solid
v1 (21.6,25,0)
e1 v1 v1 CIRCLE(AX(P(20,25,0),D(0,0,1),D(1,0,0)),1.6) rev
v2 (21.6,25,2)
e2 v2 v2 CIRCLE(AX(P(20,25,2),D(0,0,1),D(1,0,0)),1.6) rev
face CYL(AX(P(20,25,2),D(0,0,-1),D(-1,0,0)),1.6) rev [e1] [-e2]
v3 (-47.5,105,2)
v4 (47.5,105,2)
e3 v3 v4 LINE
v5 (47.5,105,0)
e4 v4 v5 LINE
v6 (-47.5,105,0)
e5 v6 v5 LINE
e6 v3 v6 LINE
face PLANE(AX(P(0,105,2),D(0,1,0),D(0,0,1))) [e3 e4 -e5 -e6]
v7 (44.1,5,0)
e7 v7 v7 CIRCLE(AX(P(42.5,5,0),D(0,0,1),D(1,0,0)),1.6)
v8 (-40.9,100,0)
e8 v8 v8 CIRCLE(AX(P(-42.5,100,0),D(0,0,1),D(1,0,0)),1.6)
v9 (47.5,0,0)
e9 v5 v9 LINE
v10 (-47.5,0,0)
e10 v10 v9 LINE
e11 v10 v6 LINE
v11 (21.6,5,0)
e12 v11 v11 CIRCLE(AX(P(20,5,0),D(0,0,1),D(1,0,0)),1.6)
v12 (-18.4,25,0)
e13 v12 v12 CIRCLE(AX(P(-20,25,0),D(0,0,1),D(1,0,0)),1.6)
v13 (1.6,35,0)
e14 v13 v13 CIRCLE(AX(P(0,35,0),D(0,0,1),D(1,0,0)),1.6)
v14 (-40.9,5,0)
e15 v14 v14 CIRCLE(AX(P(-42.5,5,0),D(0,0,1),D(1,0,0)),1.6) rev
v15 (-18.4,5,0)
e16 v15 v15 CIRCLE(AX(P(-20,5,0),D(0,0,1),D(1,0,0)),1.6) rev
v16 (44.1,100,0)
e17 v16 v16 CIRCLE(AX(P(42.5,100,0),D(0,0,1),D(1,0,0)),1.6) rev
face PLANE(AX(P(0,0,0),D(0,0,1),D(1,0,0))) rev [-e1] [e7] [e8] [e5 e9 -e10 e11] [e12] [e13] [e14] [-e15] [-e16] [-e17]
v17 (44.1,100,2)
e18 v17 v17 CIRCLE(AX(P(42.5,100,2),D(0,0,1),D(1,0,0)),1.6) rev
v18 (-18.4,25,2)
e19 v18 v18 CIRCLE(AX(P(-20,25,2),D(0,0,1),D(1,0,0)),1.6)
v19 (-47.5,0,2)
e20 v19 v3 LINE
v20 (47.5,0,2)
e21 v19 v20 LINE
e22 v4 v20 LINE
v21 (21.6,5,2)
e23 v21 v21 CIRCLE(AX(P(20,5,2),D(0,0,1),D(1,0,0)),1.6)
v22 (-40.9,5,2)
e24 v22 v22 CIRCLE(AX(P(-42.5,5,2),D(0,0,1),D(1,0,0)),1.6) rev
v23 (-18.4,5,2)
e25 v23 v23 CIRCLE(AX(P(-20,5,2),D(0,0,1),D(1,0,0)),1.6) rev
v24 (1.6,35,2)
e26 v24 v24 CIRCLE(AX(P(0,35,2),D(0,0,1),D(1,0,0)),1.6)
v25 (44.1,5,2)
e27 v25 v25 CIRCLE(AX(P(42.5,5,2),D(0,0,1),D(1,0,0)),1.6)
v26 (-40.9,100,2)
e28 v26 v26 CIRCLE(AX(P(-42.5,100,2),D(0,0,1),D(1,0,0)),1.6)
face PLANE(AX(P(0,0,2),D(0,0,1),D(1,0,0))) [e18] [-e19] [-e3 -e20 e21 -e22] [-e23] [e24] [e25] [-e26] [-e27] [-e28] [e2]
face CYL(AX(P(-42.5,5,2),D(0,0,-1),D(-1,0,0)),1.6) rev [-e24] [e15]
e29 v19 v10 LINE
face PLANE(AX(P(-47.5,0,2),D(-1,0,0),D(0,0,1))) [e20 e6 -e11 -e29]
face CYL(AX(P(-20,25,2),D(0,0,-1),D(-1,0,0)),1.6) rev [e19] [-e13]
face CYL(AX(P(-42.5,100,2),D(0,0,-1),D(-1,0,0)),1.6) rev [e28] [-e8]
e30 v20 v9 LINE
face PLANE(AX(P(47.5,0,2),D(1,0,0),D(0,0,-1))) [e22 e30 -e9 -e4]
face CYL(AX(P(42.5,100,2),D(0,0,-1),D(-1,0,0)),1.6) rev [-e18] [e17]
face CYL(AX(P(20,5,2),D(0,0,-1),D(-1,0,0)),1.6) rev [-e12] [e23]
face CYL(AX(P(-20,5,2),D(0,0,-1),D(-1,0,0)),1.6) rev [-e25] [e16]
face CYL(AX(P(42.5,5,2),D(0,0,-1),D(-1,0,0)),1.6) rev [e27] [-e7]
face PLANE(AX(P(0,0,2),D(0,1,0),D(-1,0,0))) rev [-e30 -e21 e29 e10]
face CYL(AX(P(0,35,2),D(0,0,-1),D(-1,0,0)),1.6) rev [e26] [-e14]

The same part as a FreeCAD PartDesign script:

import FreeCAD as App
import Part
import Sketcher

doc = App.newDocument("Part")
params = doc.addObject("Spreadsheet::Sheet", "Params")
for row, (alias, value) in enumerate([
    ("sketch1_diameter", "3.2 mm"),
    ("sketch1_width", "95 mm"),
    ("sketch1_height", "105 mm"),
    ("pad1_length", "2 mm"),
], start=1):
    params.set(f"A{row}", alias)
    params.set(f"B{row}", "=" + value)
    params.setAlias(f"B{row}", alias)

body = doc.addObject("PartDesign::Body", "Body")

# Sketch on XY plane
sketch1 = body.newObject("Sketcher::SketchObject", "Sketch")
sketch1.AttachmentSupport = (doc.getObject("XY_Plane"), [""])
sketch1.MapMode = "FlatFace"
sketch1.addGeometry([
    Part.LineSegment(App.Vector(-47.5, 105, 0), App.Vector(-47.5, 0, 0)),  # 0
    Part.LineSegment(App.Vector(-47.5, 0, 0), App.Vector(47.5, 0, 0)),  # 1
    Part.LineSegment(App.Vector(47.5, 0, 0), App.Vector(47.5, 105, 0)),  # 2
    Part.LineSegment(App.Vector(47.5, 105, 0), App.Vector(-47.5, 105, 0)),  # 3
    Part.Circle(App.Vector(-42.5, 5, 0), App.Vector(0, 0, 1), 1.6),  # 4
    Part.Circle(App.Vector(42.5, 5, 0), App.Vector(0, 0, 1), 1.6),  # 5
    Part.Circle(App.Vector(0, 35, 0), App.Vector(0, 0, 1), 1.6),  # 6
    Part.Circle(App.Vector(-42.5, 100, 0), App.Vector(0, 0, 1), 1.6),  # 7
    Part.Circle(App.Vector(42.5, 100, 0), App.Vector(0, 0, 1), 1.6),  # 8
    Part.Circle(App.Vector(20, 25, 0), App.Vector(0, 0, 1), 1.6),  # 9
    Part.Circle(App.Vector(-20, 25, 0), App.Vector(0, 0, 1), 1.6),  # 10
    Part.Circle(App.Vector(20, 5, 0), App.Vector(0, 0, 1), 1.6),  # 11
    Part.Circle(App.Vector(-20, 5, 0), App.Vector(0, 0, 1), 1.6),  # 12
], False)
sketch1.addConstraint([
    Sketcher.Constraint("Coincident", 0, 2, 1, 1),
    Sketcher.Constraint("Coincident", 1, 2, 2, 1),
    Sketcher.Constraint("Coincident", 2, 2, 3, 1),
    Sketcher.Constraint("Coincident", 3, 2, 0, 1),
    Sketcher.Constraint("Vertical", 0),
    Sketcher.Constraint("Horizontal", 1),
    Sketcher.Constraint("Vertical", 2),
    Sketcher.Constraint("Horizontal", 3),
    Sketcher.Constraint("Equal", 4, 5),
    Sketcher.Constraint("Equal", 5, 6),
    Sketcher.Constraint("Equal", 6, 7),
    Sketcher.Constraint("Equal", 7, 8),
    Sketcher.Constraint("Equal", 8, 9),
    Sketcher.Constraint("Equal", 9, 10),
    Sketcher.Constraint("Equal", 10, 11),
    Sketcher.Constraint("Equal", 11, 12),
    Sketcher.Constraint("Symmetric", 0, 2, 1, 2, -1, 1),
    Sketcher.Constraint("Symmetric", 4, 3, 5, 3, -2),
    Sketcher.Constraint("Symmetric", 7, 3, 8, 3, -2),
    Sketcher.Constraint("Symmetric", 9, 3, 10, 3, -2),
    Sketcher.Constraint("Symmetric", 11, 3, 12, 3, -2),
    Sketcher.Constraint("PointOnObject", 6, 3, -2),
    Sketcher.Constraint("Horizontal", 5, 3, 11, 3),
    Sketcher.Constraint("Vertical", 4, 3, 7, 3),
    Sketcher.Constraint("Vertical", 9, 3, 11, 3),
    Sketcher.Constraint("Diameter", 4, 3.2),
    Sketcher.Constraint("DistanceX", 1, 1, 1, 2, 95.0),
    Sketcher.Constraint("DistanceY", 0, 2, 0, 1, 105.0),
    Sketcher.Constraint("DistanceY", -1, 1, 4, 3, 5.0),
    Sketcher.Constraint("DistanceY", -1, 1, 6, 3, 35.0),
    Sketcher.Constraint("DistanceY", -1, 1, 7, 3, 100.0),
    Sketcher.Constraint("DistanceX", -1, 1, 9, 3, 20.0),
    Sketcher.Constraint("DistanceY", -1, 1, 9, 3, 25.0),
    Sketcher.Constraint("DistanceX", 4, 3, 5, 3, 85.0),
])
sketch1.setExpression("Constraints[25]", "Params.sketch1_diameter")
sketch1.setExpression("Constraints[26]", "Params.sketch1_width")
sketch1.setExpression("Constraints[27]", "Params.sketch1_height")
pad1 = body.newObject("PartDesign::Pad", "Pad")
pad1.Profile = sketch1
pad1.setExpression("Length", "Params.pad1_length")

doc.recompute()
